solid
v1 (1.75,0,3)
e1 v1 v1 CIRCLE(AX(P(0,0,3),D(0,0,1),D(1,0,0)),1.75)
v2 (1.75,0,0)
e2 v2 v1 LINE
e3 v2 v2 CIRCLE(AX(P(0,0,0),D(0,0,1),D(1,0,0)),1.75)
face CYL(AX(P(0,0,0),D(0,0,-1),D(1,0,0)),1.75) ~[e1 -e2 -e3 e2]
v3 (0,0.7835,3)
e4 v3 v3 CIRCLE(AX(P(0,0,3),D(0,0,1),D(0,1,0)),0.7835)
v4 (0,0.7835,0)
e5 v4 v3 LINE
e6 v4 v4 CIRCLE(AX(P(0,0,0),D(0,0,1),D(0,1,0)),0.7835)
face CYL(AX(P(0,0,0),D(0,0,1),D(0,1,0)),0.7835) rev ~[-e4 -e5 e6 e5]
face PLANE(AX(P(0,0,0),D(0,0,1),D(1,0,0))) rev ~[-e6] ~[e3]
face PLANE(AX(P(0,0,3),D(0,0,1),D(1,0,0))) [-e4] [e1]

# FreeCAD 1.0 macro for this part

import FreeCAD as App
import Part
import Sketcher
from FreeCAD import Vector

doc = App.newDocument("Part")
body = doc.addObject("PartDesign::Body", "Body")

sketch1 = body.newObject("Sketcher::SketchObject", "Sketch")
sketch1.AttachmentSupport = (doc.getObject("XY_Plane"), [""])
sketch1.MapMode = "FlatFace"
sketch1.addGeometry(Part.Circle(Vector(0, 0, 0), Vector(0, 0, 1), 1.8), False)
sketch1.addConstraint(Sketcher.Constraint("Coincident", 0, 3, -1, 1))
sketch1.addConstraint(Sketcher.Constraint("Diameter", 0, 3.5))
pad1 = body.newObject("PartDesign::Pad", "Pad")
pad1.Profile = sketch1
pad1.Length = 3

sketch2 = body.newObject("Sketcher::SketchObject", "Sketch001")
sketch2.AttachmentSupport = (doc.getObject("XY_Plane"), [""])
sketch2.MapMode = "FlatFace"
sketch2.addGeometry(Part.Circle(Vector(0, 0, 0), Vector(0, 0, 1), 0.8), False)
sketch2.addConstraint(Sketcher.Constraint("Coincident", 0, 3, -1, 1))
sketch2.addConstraint(Sketcher.Constraint("Diameter", 0, 1.567))
doc.recompute()
hole = body.newObject("PartDesign::Hole", "Hole")
hole.Profile = sketch2
hole.ThreadType = "None"
hole.Diameter = 1.567
hole.DepthType = "ThroughAll"
hole.Reversed = True

doc.recompute()
